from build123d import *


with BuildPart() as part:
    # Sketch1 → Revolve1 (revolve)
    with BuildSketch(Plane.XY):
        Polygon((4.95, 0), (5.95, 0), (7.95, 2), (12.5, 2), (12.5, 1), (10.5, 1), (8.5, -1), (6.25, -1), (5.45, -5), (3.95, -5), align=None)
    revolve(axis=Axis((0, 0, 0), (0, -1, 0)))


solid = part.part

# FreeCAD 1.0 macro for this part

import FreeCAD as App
import Part
import Sketcher

V = App.Vector
Q = App.Units.Quantity

doc = App.newDocument("Part")
body = doc.addObject("PartDesign::Body", "Body")

# Sketch on XY plane
sketch1 = body.newObject("Sketcher::SketchObject", "Sketch")
sketch1.AttachmentSupport = (doc.getObject("XY_Plane"), [""])
sketch1.MapMode = "FlatFace"
sketch1.addGeometry([
    Part.LineSegment(V(6, 0, 0), V(5, 0, 0)),  # 0
    Part.LineSegment(V(5, 0, 0), V(4, -5, 0)),  # 1
    Part.LineSegment(V(4, -5, 0), V(5.5, -5, 0)),  # 2
    Part.LineSegment(V(5.5, -5, 0), V(6.2, -1, 0)),  # 3
    Part.LineSegment(V(6.2, -1, 0), V(8.5, -1, 0)),  # 4
    Part.LineSegment(V(8.5, -1, 0), V(10.5, 1, 0)),  # 5
    Part.LineSegment(V(10.5, 1, 0), V(12.5, 1, 0)),  # 6
    Part.LineSegment(V(12.5, 1, 0), V(12.5, 2, 0)),  # 7
    Part.LineSegment(V(12.5, 2, 0), V(8, 2, 0)),  # 8
    Part.LineSegment(V(8, 2, 0), V(6, 0, 0)),  # 9
], False)
sketch1.addConstraint([
    Sketcher.Constraint("Coincident", 0, 2, 1, 1),
    Sketcher.Constraint("Coincident", 1, 2, 2, 1),
    Sketcher.Constraint("Coincident", 2, 2, 3, 1),
    Sketcher.Constraint("Coincident", 3, 2, 4, 1),
    Sketcher.Constraint("Coincident", 4, 2, 5, 1),
    Sketcher.Constraint("Coincident", 5, 2, 6, 1),
    Sketcher.Constraint("Coincident", 6, 2, 7, 1),
    Sketcher.Constraint("Coincident", 7, 2, 8, 1),
    Sketcher.Constraint("Coincident", 8, 2, 9, 1),
    Sketcher.Constraint("Coincident", 9, 2, 0, 1),
    Sketcher.Constraint("Horizontal", 0),
    Sketcher.Constraint("Horizontal", 2),
    Sketcher.Constraint("Horizontal", 4),
    Sketcher.Constraint("Horizontal", 6),
    Sketcher.Constraint("Vertical", 7),
    Sketcher.Constraint("Horizontal", 8),
    Sketcher.Constraint("PointOnObject", 0, 2, -1),
    Sketcher.Constraint("Parallel", 1, 3),
    Sketcher.Constraint("Parallel", 5, 9),
    Sketcher.Constraint("Equal", 0, 7),
    Sketcher.Constraint("Equal", 5, 9),
    Sketcher.Constraint("DistanceX", 0, 2, 0, 1, 1.0),
    Sketcher.Constraint("DistanceX", 6, 1, 6, 2, 2.0),
    Sketcher.Constraint("Angle", 5, Q("45 deg")),
    Sketcher.Constraint("DistanceX", 2, 1, 2, 2, 1.5),
    Sketcher.Constraint("DistanceY", 1, 2, -1, 1, 5.0),
    Sketcher.Constraint("DistanceY", -1, 1, 5, 2, 1.0),
    Sketcher.Constraint("DistanceX", 1, 2, 0, 2, 1.0),
    Sketcher.Constraint("DistanceX", 4, 1, 4, 2, 2.25),
    Sketcher.Constraint("DistanceX", -1, 1, 4, 2, 8.5),
])
revolution = body.newObject("PartDesign::Revolution", "Revolution")
revolution.Profile = sketch1
revolution.ReferenceAxis = (sketch1, ["V_Axis"])
revolution.Angle = 360

doc.recompute()
